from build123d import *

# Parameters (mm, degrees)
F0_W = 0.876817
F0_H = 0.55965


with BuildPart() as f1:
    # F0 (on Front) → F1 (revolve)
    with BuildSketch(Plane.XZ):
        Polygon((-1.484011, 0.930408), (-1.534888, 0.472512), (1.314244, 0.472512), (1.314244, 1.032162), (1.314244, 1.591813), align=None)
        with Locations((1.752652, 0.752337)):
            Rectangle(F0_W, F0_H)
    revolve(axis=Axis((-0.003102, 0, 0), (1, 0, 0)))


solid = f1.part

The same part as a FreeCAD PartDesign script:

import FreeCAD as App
import Part
import Sketcher
from FreeCAD import Vector
Q = App.Units.Quantity

doc = App.newDocument("Part")
params = doc.addObject("Spreadsheet::Sheet", "Params")
for row, (alias, value) in enumerate([
    ("revolution_angle", "360 deg"),
], start=1):
    params.set(f"A{row}", alias)
    params.set(f"B{row}", "=" + value)
    params.setAlias(f"B{row}", alias)

body = doc.addObject("PartDesign::Body", "Body")

sketch1 = body.newObject("Sketcher::SketchObject", "Sketch")
sketch1.AttachmentSupport = (doc.getObject("XZ_Plane"), [""])
sketch1.MapMode = "FlatFace"
sketch1.addGeometry(Part.LineSegment(Vector(1.31, 1.59, 0), Vector(-1.48, 0.93, 0)), False)
sketch1.addGeometry(Part.LineSegment(Vector(-1.48, 0.93, 0), Vector(-1.53, 0.47, 0)), False)
sketch1.addGeometry(Part.LineSegment(Vector(-1.53, 0.47, 0), Vector(2.19, 0.47, 0)), False)
sketch1.addGeometry(Part.LineSegment(Vector(2.19, 0.47, 0), Vector(2.19, 1.03, 0)), False)
sketch1.addGeometry(Part.LineSegment(Vector(2.19, 1.03, 0), Vector(1.31, 1.03, 0)), False)
sketch1.addGeometry(Part.LineSegment(Vector(1.31, 1.03, 0), Vector(1.31, 1.59, 0)), False)
sketch1.addConstraint(Sketcher.Constraint("Coincident", 0, 2, 1, 1))
sketch1.addConstraint(Sketcher.Constraint("Coincident", 1, 2, 2, 1))
sketch1.addConstraint(Sketcher.Constraint("Coincident", 2, 2, 3, 1))
sketch1.addConstraint(Sketcher.Constraint("Coincident", 3, 2, 4, 1))
sketch1.addConstraint(Sketcher.Constraint("Coincident", 4, 2, 5, 1))
sketch1.addConstraint(Sketcher.Constraint("Coincident", 5, 2, 0, 1))
sketch1.addConstraint(Sketcher.Constraint("Horizontal", 2))
sketch1.addConstraint(Sketcher.Constraint("Vertical", 3))
sketch1.addConstraint(Sketcher.Constraint("Horizontal", 4))
sketch1.addConstraint(Sketcher.Constraint("Vertical", 5))
sketch1.addConstraint(Sketcher.Constraint("Equal", 3, 5))
sketch1.addConstraint(Sketcher.Constraint("DistanceX", 2, 1, 2, 2, Q("3.725948 mm")))
sketch1.addConstraint(Sketcher.Constraint("DistanceY", 3, 1, 3, 2, Q("0.55965 mm")))
sketch1.addConstraint(Sketcher.Constraint("Distance", 0, Q("2.875359 mm")))
sketch1.addConstraint(Sketcher.Constraint("DistanceX", 4, 2, 4, 1, Q("0.876816 mm")))
sketch1.addConstraint(Sketcher.Constraint("DistanceX", 0, 2, -1, 1, Q("1.484011 mm")))
sketch1.addConstraint(Sketcher.Constraint("DistanceY", -1, 1, 0, 2, Q("0.930408 mm")))
sketch1.addConstraint(Sketcher.Constraint("DistanceX", -1, 1, 2, 2, Q("2.19106 mm")))
revolution = body.newObject("PartDesign::Revolution", "Revolution")
revolution.Profile = sketch1
revolution.ReferenceAxis = (sketch1, ["H_Axis"])
revolution.setExpression("Angle", "Params.revolution_angle")

doc.recompute()
